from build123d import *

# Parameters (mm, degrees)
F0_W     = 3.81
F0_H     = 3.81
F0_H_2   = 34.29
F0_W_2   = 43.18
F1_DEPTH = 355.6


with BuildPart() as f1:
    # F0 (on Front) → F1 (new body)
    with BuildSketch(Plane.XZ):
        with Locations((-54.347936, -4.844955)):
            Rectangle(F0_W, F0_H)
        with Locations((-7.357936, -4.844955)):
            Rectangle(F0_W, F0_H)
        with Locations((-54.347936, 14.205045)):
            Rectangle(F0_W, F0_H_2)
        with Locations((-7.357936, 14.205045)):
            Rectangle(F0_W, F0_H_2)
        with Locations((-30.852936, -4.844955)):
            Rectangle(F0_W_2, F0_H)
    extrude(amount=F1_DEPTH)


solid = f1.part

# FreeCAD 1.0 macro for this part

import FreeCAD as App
import Part
import Sketcher
Q = App.Units.Quantity


def add_polygon(sketch, points):
    """Adds a closed chain of lines whose ends are joined by coincident constraints."""
    first, n = sketch.GeometryCount, len(points)
    for a, b in zip(points, points[1:] + points[:1]):
        sketch.addGeometry(Part.LineSegment(App.Vector(*a, 0), App.Vector(*b, 0)), False)
    for i in range(n):
        sketch.addConstraint(Sketcher.Constraint("Coincident", first + i, 2, first + (i + 1) % n, 1))

doc = App.newDocument("Part")
body = doc.addObject("PartDesign::Body", "Body")

# Sketch on XZ plane
sketch1 = body.newObject("Sketcher::SketchObject", "Sketch")
sketch1.AttachmentSupport = (doc.getObject("XZ_Plane"), [""])
sketch1.MapMode = "FlatFace"
add_polygon(sketch1, [(-56.3, -6.7), (-5.5, -6.7), (-5.5, 31.4), (-9.3, 31.4), (-9.3, -2.9), (-52.4, -2.9), (-52.4, 31.4), (-56.3, 31.4)])  # lines 0-7
sketch1.addConstraint([
    Sketcher.Constraint("Horizontal", 0),
    Sketcher.Constraint("Vertical", 1),
    Sketcher.Constraint("Horizontal", 2),
    Sketcher.Constraint("Vertical", 3),
    Sketcher.Constraint("Horizontal", 4),
    Sketcher.Constraint("Vertical", 5),
    Sketcher.Constraint("Horizontal", 6),
    Sketcher.Constraint("Vertical", 7),
    Sketcher.Constraint("Horizontal", 2, 2, 5, 2),
    Sketcher.Constraint("Equal", 2, 6),
    Sketcher.Constraint("DistanceX", 0, 1, 0, 2, Q("2 in")),
    Sketcher.Constraint("DistanceX", 4, 2, 4, 1, Q("1.7 in")),
    Sketcher.Constraint("DistanceY", 1, 1, 1, 2, Q("1.5 in")),
    Sketcher.Constraint("DistanceY", 3, 2, 3, 1, Q("1.35 in")),
    Sketcher.Constraint("DistanceX", 0, 2, -1, 1, 5.452936),
    Sketcher.Constraint("DistanceY", 0, 2, -1, 1, 6.749955),
])
pad1 = body.newObject("PartDesign::Pad", "Pad")
pad1.Profile = sketch1
pad1.Length = Q("14 in")

doc.recompute()
